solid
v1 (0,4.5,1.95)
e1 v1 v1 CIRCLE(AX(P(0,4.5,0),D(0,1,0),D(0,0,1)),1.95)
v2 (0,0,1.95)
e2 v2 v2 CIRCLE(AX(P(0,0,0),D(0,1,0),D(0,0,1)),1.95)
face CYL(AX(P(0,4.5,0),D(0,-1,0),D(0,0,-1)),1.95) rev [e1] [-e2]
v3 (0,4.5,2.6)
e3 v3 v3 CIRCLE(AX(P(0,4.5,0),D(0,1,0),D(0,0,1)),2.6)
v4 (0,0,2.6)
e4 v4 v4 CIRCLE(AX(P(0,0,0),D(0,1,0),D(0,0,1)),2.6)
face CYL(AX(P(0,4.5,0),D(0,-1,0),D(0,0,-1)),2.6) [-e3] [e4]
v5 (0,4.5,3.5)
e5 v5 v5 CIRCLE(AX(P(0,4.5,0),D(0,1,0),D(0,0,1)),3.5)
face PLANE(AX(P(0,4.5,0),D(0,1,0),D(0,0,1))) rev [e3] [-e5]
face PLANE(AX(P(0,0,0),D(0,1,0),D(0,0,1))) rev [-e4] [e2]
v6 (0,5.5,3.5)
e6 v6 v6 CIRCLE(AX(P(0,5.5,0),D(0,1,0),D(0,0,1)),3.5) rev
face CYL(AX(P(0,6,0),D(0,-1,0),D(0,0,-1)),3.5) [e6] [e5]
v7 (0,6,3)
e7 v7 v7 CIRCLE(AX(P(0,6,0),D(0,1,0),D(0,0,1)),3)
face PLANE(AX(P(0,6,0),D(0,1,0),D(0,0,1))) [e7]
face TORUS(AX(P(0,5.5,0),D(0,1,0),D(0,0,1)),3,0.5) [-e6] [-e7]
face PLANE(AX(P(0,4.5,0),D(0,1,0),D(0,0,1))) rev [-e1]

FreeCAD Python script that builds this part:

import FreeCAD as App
import Part
import Sketcher
from FreeCAD import Vector


def edges_at(feature, points):
    """Names of the edges that pass closest to the given points."""
    edges = feature.Shape.Edges
    near = lambda p: min(range(len(edges)), key=lambda i: edges[i].distToShape(Part.Vertex(*p))[0])
    return sorted({f"Edge{near(p) + 1}" for p in points})

doc = App.newDocument("Part")
body = doc.addObject("PartDesign::Body", "Body")

# Sketch on XZ plane
sketch1 = body.newObject("Sketcher::SketchObject", "Sketch")
sketch1.AttachmentSupport = (doc.getObject("XZ_Plane"), [""])
sketch1.MapMode = "FlatFace"
sketch1.addGeometry([
    Part.Circle(Vector(0, 0, 0), Vector(0, 0, 1), 2.6),
    Part.Circle(Vector(0, 0, 0), Vector(0, 0, 1), 1.9),
], False)
sketch1.addConstraint([
    Sketcher.Constraint("Coincident", 0, 3, -1, 1),
    Sketcher.Constraint("Coincident", 1, 3, -1, 1),
    Sketcher.Constraint("Diameter", 0, 5.2),
    Sketcher.Constraint("Diameter", 1, 3.9),
])
pad1 = body.newObject("PartDesign::Pad", "Pad")
pad1.Profile = sketch1
pad1.Length = 4.5
pad1.Reversed = True

# Sketch on XZ plane
sketch2 = body.newObject("Sketcher::SketchObject", "Sketch001")
sketch2.AttachmentSupport = (doc.getObject("XZ_Plane"), [""])
sketch2.MapMode = "FlatFace"
sketch2.AttachmentOffset = App.Placement(Vector(0, 0, -4.5), App.Rotation())
sketch2.addGeometry(Part.Circle(Vector(0, 0, 0), Vector(0, 0, 1), 3.5), False)
sketch2.addConstraint([
    Sketcher.Constraint("Coincident", 0, 3, -1, 1),
    Sketcher.Constraint("Diameter", 0, 7.0),
])
pad2 = body.newObject("PartDesign::Pad", "Pad001")
pad2.Profile = sketch2
pad2.Length = 1.5
pad2.Reversed = True
doc.recompute()

fillet = body.newObject("PartDesign::Fillet", "Fillet")
fillet.Base = (pad2, edges_at(pad2, [(0, 6, -3.5)]))
fillet.Radius = 0.5

doc.recompute()
